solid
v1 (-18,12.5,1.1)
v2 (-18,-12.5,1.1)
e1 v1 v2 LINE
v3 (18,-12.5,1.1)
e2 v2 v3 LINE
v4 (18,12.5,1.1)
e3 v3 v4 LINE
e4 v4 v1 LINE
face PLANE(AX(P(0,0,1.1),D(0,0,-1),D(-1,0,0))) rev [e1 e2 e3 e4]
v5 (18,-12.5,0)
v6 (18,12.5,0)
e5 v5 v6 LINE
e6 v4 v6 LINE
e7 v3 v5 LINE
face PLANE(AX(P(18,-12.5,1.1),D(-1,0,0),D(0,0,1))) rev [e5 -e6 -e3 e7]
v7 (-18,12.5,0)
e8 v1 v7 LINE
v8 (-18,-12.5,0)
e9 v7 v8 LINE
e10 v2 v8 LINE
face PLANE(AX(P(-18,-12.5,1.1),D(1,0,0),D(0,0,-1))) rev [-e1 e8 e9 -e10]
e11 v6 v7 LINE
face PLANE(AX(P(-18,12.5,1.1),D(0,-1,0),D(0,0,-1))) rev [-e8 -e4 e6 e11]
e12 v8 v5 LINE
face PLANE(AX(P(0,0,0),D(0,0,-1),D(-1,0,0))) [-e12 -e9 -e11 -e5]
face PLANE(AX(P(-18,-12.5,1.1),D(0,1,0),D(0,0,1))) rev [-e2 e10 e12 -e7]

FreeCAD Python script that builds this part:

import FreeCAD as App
import Part
import Sketcher
Q = App.Units.Quantity

doc = App.newDocument("Part")
params = doc.addObject("Spreadsheet::Sheet", "Params")
for row, (alias, value) in enumerate([
    ("sketch1_width", "36 mm"),
    ("sketch1_height", "25 mm"),
    ("pad1_length", "1.1 mm"),
], start=1):
    params.set(f"A{row}", alias)
    params.set(f"B{row}", "=" + value)
    params.setAlias(f"B{row}", alias)

body = doc.addObject("PartDesign::Body", "Body")

# Sketch on XY plane
sketch1 = body.newObject("Sketcher::SketchObject", "Sketch")
sketch1.AttachmentSupport = (doc.getObject("XY_Plane"), [""])
sketch1.MapMode = "FlatFace"
sketch1.addGeometry(Part.LineSegment(App.Vector(-18, 12, 0), App.Vector(-18, -12, 0)), False)
sketch1.addGeometry(Part.LineSegment(App.Vector(-18, -12, 0), App.Vector(18, -12, 0)), False)
sketch1.addGeometry(Part.LineSegment(App.Vector(18, -12, 0), App.Vector(18, 12, 0)), False)
sketch1.addGeometry(Part.LineSegment(App.Vector(18, 12, 0), App.Vector(-18, 12, 0)), False)
sketch1.addConstraint(Sketcher.Constraint("Coincident", 0, 2, 1, 1))
sketch1.addConstraint(Sketcher.Constraint("Coincident", 1, 2, 2, 1))
sketch1.addConstraint(Sketcher.Constraint("Coincident", 2, 2, 3, 1))
sketch1.addConstraint(Sketcher.Constraint("Coincident", 3, 2, 0, 1))
sketch1.addConstraint(Sketcher.Constraint("Vertical", 0))
sketch1.addConstraint(Sketcher.Constraint("Horizontal", 1))
sketch1.addConstraint(Sketcher.Constraint("Vertical", 2))
sketch1.addConstraint(Sketcher.Constraint("Horizontal", 3))
sketch1.addConstraint(Sketcher.Constraint("Symmetric", 0, 2, 2, 2, -1, 1))
sketch1.addConstraint(Sketcher.Constraint("DistanceX", 1, 1, 1, 2, Q("36 mm")))
sketch1.addConstraint(Sketcher.Constraint("DistanceY", 0, 2, 0, 1, Q("25 mm")))
sketch1.setExpression("Constraints[9]", "Params.sketch1_width")
sketch1.setExpression("Constraints[10]", "Params.sketch1_height")
pad1 = body.newObject("PartDesign::Pad", "Pad")
pad1.Profile = sketch1
pad1.setExpression("Length", "Params.pad1_length")

doc.recompute()
